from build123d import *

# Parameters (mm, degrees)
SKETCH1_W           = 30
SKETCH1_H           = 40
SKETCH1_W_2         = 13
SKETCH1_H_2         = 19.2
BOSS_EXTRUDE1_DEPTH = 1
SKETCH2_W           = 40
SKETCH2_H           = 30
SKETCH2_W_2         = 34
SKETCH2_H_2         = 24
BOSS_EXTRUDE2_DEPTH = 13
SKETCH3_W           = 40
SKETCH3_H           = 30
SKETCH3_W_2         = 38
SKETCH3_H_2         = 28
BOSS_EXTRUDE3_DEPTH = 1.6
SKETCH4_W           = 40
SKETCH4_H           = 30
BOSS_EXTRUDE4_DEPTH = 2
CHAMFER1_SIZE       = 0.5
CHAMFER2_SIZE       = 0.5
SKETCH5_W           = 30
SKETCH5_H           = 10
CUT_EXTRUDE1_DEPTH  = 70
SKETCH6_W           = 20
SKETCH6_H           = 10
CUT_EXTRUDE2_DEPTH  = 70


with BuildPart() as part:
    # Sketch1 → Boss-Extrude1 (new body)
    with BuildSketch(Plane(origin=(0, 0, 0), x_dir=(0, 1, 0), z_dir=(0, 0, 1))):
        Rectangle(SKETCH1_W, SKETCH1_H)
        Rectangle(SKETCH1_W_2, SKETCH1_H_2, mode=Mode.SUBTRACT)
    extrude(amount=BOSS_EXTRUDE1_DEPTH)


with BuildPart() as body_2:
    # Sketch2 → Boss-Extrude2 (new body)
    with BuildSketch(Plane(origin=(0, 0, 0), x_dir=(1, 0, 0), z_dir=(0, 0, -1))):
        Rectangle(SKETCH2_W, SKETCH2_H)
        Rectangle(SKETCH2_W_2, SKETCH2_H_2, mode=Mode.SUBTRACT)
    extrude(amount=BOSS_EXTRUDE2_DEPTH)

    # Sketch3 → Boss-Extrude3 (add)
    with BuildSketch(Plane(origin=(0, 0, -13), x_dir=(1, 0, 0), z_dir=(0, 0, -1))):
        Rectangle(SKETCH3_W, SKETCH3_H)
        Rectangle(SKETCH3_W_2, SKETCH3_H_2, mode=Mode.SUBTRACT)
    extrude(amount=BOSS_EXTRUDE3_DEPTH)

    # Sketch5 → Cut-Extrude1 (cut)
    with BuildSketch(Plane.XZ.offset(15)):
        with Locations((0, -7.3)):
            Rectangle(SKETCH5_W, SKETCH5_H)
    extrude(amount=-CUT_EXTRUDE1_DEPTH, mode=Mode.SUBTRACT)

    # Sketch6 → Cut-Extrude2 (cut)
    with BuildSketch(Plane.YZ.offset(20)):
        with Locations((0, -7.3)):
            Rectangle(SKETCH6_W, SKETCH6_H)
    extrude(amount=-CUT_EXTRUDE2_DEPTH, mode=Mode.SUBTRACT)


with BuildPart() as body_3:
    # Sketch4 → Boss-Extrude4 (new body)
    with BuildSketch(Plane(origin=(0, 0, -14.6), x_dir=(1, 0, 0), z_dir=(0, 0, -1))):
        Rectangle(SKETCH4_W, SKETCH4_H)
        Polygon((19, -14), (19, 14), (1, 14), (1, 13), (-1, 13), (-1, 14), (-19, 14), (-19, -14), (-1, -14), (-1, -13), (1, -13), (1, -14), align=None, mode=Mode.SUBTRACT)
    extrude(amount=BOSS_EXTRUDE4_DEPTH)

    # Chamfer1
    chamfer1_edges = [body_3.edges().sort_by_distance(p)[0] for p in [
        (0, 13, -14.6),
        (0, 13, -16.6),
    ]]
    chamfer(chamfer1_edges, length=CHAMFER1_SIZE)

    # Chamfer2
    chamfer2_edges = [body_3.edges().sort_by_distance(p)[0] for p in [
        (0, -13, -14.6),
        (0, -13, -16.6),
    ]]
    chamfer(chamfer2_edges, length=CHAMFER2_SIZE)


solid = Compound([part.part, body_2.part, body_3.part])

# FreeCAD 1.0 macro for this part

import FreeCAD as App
import Part
import Sketcher
from FreeCAD import Vector
Q = App.Units.Quantity


def edges_at(feature, points):
    """Names of the edges that pass closest to the given points."""
    edges = feature.Shape.Edges
    near = lambda p: min(range(len(edges)), key=lambda i: edges[i].distToShape(Part.Vertex(*p))[0])
    return sorted({f"Edge{near(p) + 1}" for p in points})


def add_polygon(sketch, points):
    """Adds a closed chain of lines whose ends are joined by coincident constraints."""
    first, n = sketch.GeometryCount, len(points)
    for a, b in zip(points, points[1:] + points[:1]):
        sketch.addGeometry(Part.LineSegment(App.Vector(*a, 0), App.Vector(*b, 0)), False)
    for i in range(n):
        sketch.addConstraint(Sketcher.Constraint("Coincident", first + i, 2, first + (i + 1) % n, 1))

doc = App.newDocument("Part")
body = doc.addObject("PartDesign::Body", "Body")

sketch1 = body.newObject("Sketcher::SketchObject", "Sketch")
sketch1.AttachmentSupport = (doc.getObject("XY_Plane"), [""])
sketch1.MapMode = "FlatFace"
add_polygon(sketch1, [(-20, -15), (20, -15), (20, 15), (-20, 15)])
add_polygon(sketch1, [(9.6, 6.5), (9.6, -6.5), (-9.6, -6.5), (-9.6, 6.5)])
sketch1.addConstraint([
    Sketcher.Constraint("Horizontal", 0),
    Sketcher.Constraint("Vertical", 1),
    Sketcher.Constraint("Horizontal", 2),
    Sketcher.Constraint("Vertical", 3),
    Sketcher.Constraint("Vertical", 4),
    Sketcher.Constraint("Horizontal", 5),
    Sketcher.Constraint("Vertical", 6),
    Sketcher.Constraint("Horizontal", 7),
    Sketcher.Constraint("Symmetric", 0, 2, 2, 2, -1, 1),
    Sketcher.Constraint("Symmetric", 4, 2, 6, 2, -1, 1),
    Sketcher.Constraint("DistanceX", 0, 1, 0, 2, Q("40 mm")),
    Sketcher.Constraint("DistanceY", 1, 1, 1, 2, Q("30 mm")),
    Sketcher.Constraint("DistanceY", 4, 2, 4, 1, Q("13 mm")),
    Sketcher.Constraint("DistanceX", 5, 2, 5, 1, Q("19.2 mm")),
])
pad1 = body.newObject("PartDesign::Pad", "Pad")
pad1.Profile = sketch1
pad1.Length = 1
body2 = doc.addObject("PartDesign::Body", "Body001")

sketch2 = body2.newObject("Sketcher::SketchObject", "Sketch001")
sketch2.AttachmentSupport = (doc.getObject("XY_Plane001"), [""])
sketch2.MapMode = "FlatFace"
add_polygon(sketch2, [(-20, -15), (-20, 15), (20, 15), (20, -15)])
add_polygon(sketch2, [(17, 12), (-17, 12), (-17, -12), (17, -12)])
sketch2.addConstraint([
    Sketcher.Constraint("Vertical", 0),
    Sketcher.Constraint("Horizontal", 1),
    Sketcher.Constraint("Vertical", 2),
    Sketcher.Constraint("Horizontal", 3),
    Sketcher.Constraint("Horizontal", 4),
    Sketcher.Constraint("Vertical", 5),
    Sketcher.Constraint("Horizontal", 6),
    Sketcher.Constraint("Vertical", 7),
    Sketcher.Constraint("Symmetric", 0, 2, 2, 2, -1, 1),
    Sketcher.Constraint("Symmetric", 4, 2, 6, 2, -1, 1),
    Sketcher.Constraint("DistanceX", 1, 1, 1, 2, Q("40 mm")),
    Sketcher.Constraint("DistanceX", 4, 2, 4, 1, Q("34 mm")),
    Sketcher.Constraint("DistanceY", 0, 1, 0, 2, Q("30 mm")),
    Sketcher.Constraint("DistanceY", 5, 2, 5, 1, Q("24 mm")),
])
pad2 = body2.newObject("PartDesign::Pad", "Pad001")
pad2.Profile = sketch2
pad2.Length = 13
pad2.Reversed = True

sketch3 = body2.newObject("Sketcher::SketchObject", "Sketch002")
sketch3.AttachmentSupport = (doc.getObject("XY_Plane001"), [""])
sketch3.MapMode = "FlatFace"
sketch3.AttachmentOffset = App.Placement(Vector(0, 0, -13), App.Rotation())
add_polygon(sketch3, [(-20, -15), (-20, 15), (20, 15), (20, -15)])
add_polygon(sketch3, [(19, 14), (-19, 14), (-19, -14), (19, -14)])
sketch3.addConstraint([
    Sketcher.Constraint("Vertical", 0),
    Sketcher.Constraint("Horizontal", 1),
    Sketcher.Constraint("Vertical", 2),
    Sketcher.Constraint("Horizontal", 3),
    Sketcher.Constraint("Horizontal", 4),
    Sketcher.Constraint("Vertical", 5),
    Sketcher.Constraint("Horizontal", 6),
    Sketcher.Constraint("Vertical", 7),
    Sketcher.Constraint("Symmetric", 0, 2, 2, 2, -1, 1),
    Sketcher.Constraint("Symmetric", 4, 2, 6, 2, -1, 1),
    Sketcher.Constraint("DistanceX", 1, 1, 1, 2, Q("40 mm")),
    Sketcher.Constraint("DistanceX", 4, 2, 4, 1, Q("38 mm")),
    Sketcher.Constraint("DistanceY", 0, 1, 0, 2, Q("30 mm")),
    Sketcher.Constraint("DistanceY", 5, 2, 5, 1, Q("28 mm")),
])
pad3 = body2.newObject("PartDesign::Pad", "Pad002")
pad3.Profile = sketch3
pad3.Length = 1.6
pad3.Reversed = True

sketch4 = body2.newObject("Sketcher::SketchObject", "Sketch003")
sketch4.AttachmentSupport = (doc.getObject("XZ_Plane001"), [""])
sketch4.MapMode = "FlatFace"
sketch4.AttachmentOffset = App.Placement(Vector(0, 0, 15), App.Rotation())
add_polygon(sketch4, [(-15, -2.3), (-15, -12.3), (15, -12.3), (15, -2.3)])
sketch4.addConstraint([
    Sketcher.Constraint("Vertical", 0),
    Sketcher.Constraint("Horizontal", 1),
    Sketcher.Constraint("Vertical", 2),
    Sketcher.Constraint("Horizontal", 3),
    Sketcher.Constraint("DistanceX", 1, 1, 1, 2, Q("30 mm")),
    Sketcher.Constraint("DistanceY", 0, 2, 0, 1, Q("10 mm")),
    Sketcher.Constraint("DistanceX", 0, 2, -1, 1, Q("15 mm")),
    Sketcher.Constraint("DistanceY", 0, 2, -1, 1, Q("12.3 mm")),
])
pocket1 = body2.newObject("PartDesign::Pocket", "Pocket")
pocket1.Profile = sketch4
pocket1.Length = 70

sketch5 = body2.newObject("Sketcher::SketchObject", "Sketch004")
sketch5.AttachmentSupport = (doc.getObject("YZ_Plane001"), [""])
sketch5.MapMode = "FlatFace"
sketch5.AttachmentOffset = App.Placement(Vector(0, 0, 20), App.Rotation())
add_polygon(sketch5, [(-10, -2.3), (-10, -12.3), (10, -12.3), (10, -2.3)])
sketch5.addConstraint([
    Sketcher.Constraint("Vertical", 0),
    Sketcher.Constraint("Horizontal", 1),
    Sketcher.Constraint("Vertical", 2),
    Sketcher.Constraint("Horizontal", 3),
    Sketcher.Constraint("DistanceX", 1, 1, 1, 2, Q("20 mm")),
    Sketcher.Constraint("DistanceY", 0, 2, 0, 1, Q("10 mm")),
    Sketcher.Constraint("DistanceX", 0, 2, -1, 1, Q("10 mm")),
    Sketcher.Constraint("DistanceY", 0, 2, -1, 1, Q("12.3 mm")),
])
pocket2 = body2.newObject("PartDesign::Pocket", "Pocket001")
pocket2.Profile = sketch5
pocket2.Length = 70
body3 = doc.addObject("PartDesign::Body", "Body002")

sketch6 = body3.newObject("Sketcher::SketchObject", "Sketch005")
sketch6.AttachmentSupport = (doc.getObject("XY_Plane002"), [""])
sketch6.MapMode = "FlatFace"
sketch6.AttachmentOffset = App.Placement(Vector(0, 0, -14.6), App.Rotation())
add_polygon(sketch6, [(-20, -15), (-20, 15), (20, 15), (20, -15)])
add_polygon(sketch6, [(19, -14), (19, 14), (1, 14), (1, 13), (-1, 13), (-1, 14), (-19, 14), (-19, -14), (-1, -14), (-1, -13), (1, -13), (1, -14)])
sketch6.addConstraint([
    Sketcher.Constraint("Vertical", 0),
    Sketcher.Constraint("Horizontal", 1),
    Sketcher.Constraint("Vertical", 2),
    Sketcher.Constraint("Horizontal", 3),
    Sketcher.Constraint("Vertical", 4),
    Sketcher.Constraint("Horizontal", 5),
    Sketcher.Constraint("Vertical", 6),
    Sketcher.Constraint("Horizontal", 7),
    Sketcher.Constraint("Vertical", 8),
    Sketcher.Constraint("Horizontal", 9),
    Sketcher.Constraint("Vertical", 10),
    Sketcher.Constraint("Horizontal", 11),
    Sketcher.Constraint("Vertical", 12),
    Sketcher.Constraint("Horizontal", 13),
    Sketcher.Constraint("Vertical", 14),
    Sketcher.Constraint("Horizontal", 15),
    Sketcher.Constraint("Symmetric", 0, 2, 2, 2, -1, 1),
    Sketcher.Constraint("Symmetric", 4, 2, 10, 2, -1, 1),
    Sketcher.Constraint("Symmetric", 6, 2, 12, 2, -1, 1),
    Sketcher.Constraint("Symmetric", 8, 2, 14, 2, -1, 1),
    Sketcher.Constraint("Symmetric", 5, 2, 8, 2, -2),
    Sketcher.Constraint("DistanceX", 1, 1, 1, 2, Q("40 mm")),
    Sketcher.Constraint("DistanceX", 5, 2, 5, 1, Q("18 mm")),
    Sketcher.Constraint("DistanceX", 7, 2, 7, 1, Q("2 mm")),
    Sketcher.Constraint("DistanceY", 0, 1, 0, 2, Q("30 mm")),
    Sketcher.Constraint("DistanceY", 4, 1, 4, 2, Q("28 mm")),
    Sketcher.Constraint("DistanceY", 6, 2, 6, 1, Q("1 mm")),
])
pad4 = body3.newObject("PartDesign::Pad", "Pad003")
pad4.Profile = sketch6
pad4.Length = 2
pad4.Reversed = True
doc.recompute()

chamfer = body3.newObject("PartDesign::Chamfer", "Chamfer")
chamfer.Base = (pad4, edges_at(pad4, [(0, 13, -14.6), (0, 13, -16.6)]))
chamfer.Size = 0.5
doc.recompute()

chamfer2 = body3.newObject("PartDesign::Chamfer", "Chamfer001")
chamfer2.Base = (chamfer, edges_at(chamfer, [(0, -13, -14.6), (0, -13, -16.6)]))
chamfer2.Size = 0.5

doc.recompute()
